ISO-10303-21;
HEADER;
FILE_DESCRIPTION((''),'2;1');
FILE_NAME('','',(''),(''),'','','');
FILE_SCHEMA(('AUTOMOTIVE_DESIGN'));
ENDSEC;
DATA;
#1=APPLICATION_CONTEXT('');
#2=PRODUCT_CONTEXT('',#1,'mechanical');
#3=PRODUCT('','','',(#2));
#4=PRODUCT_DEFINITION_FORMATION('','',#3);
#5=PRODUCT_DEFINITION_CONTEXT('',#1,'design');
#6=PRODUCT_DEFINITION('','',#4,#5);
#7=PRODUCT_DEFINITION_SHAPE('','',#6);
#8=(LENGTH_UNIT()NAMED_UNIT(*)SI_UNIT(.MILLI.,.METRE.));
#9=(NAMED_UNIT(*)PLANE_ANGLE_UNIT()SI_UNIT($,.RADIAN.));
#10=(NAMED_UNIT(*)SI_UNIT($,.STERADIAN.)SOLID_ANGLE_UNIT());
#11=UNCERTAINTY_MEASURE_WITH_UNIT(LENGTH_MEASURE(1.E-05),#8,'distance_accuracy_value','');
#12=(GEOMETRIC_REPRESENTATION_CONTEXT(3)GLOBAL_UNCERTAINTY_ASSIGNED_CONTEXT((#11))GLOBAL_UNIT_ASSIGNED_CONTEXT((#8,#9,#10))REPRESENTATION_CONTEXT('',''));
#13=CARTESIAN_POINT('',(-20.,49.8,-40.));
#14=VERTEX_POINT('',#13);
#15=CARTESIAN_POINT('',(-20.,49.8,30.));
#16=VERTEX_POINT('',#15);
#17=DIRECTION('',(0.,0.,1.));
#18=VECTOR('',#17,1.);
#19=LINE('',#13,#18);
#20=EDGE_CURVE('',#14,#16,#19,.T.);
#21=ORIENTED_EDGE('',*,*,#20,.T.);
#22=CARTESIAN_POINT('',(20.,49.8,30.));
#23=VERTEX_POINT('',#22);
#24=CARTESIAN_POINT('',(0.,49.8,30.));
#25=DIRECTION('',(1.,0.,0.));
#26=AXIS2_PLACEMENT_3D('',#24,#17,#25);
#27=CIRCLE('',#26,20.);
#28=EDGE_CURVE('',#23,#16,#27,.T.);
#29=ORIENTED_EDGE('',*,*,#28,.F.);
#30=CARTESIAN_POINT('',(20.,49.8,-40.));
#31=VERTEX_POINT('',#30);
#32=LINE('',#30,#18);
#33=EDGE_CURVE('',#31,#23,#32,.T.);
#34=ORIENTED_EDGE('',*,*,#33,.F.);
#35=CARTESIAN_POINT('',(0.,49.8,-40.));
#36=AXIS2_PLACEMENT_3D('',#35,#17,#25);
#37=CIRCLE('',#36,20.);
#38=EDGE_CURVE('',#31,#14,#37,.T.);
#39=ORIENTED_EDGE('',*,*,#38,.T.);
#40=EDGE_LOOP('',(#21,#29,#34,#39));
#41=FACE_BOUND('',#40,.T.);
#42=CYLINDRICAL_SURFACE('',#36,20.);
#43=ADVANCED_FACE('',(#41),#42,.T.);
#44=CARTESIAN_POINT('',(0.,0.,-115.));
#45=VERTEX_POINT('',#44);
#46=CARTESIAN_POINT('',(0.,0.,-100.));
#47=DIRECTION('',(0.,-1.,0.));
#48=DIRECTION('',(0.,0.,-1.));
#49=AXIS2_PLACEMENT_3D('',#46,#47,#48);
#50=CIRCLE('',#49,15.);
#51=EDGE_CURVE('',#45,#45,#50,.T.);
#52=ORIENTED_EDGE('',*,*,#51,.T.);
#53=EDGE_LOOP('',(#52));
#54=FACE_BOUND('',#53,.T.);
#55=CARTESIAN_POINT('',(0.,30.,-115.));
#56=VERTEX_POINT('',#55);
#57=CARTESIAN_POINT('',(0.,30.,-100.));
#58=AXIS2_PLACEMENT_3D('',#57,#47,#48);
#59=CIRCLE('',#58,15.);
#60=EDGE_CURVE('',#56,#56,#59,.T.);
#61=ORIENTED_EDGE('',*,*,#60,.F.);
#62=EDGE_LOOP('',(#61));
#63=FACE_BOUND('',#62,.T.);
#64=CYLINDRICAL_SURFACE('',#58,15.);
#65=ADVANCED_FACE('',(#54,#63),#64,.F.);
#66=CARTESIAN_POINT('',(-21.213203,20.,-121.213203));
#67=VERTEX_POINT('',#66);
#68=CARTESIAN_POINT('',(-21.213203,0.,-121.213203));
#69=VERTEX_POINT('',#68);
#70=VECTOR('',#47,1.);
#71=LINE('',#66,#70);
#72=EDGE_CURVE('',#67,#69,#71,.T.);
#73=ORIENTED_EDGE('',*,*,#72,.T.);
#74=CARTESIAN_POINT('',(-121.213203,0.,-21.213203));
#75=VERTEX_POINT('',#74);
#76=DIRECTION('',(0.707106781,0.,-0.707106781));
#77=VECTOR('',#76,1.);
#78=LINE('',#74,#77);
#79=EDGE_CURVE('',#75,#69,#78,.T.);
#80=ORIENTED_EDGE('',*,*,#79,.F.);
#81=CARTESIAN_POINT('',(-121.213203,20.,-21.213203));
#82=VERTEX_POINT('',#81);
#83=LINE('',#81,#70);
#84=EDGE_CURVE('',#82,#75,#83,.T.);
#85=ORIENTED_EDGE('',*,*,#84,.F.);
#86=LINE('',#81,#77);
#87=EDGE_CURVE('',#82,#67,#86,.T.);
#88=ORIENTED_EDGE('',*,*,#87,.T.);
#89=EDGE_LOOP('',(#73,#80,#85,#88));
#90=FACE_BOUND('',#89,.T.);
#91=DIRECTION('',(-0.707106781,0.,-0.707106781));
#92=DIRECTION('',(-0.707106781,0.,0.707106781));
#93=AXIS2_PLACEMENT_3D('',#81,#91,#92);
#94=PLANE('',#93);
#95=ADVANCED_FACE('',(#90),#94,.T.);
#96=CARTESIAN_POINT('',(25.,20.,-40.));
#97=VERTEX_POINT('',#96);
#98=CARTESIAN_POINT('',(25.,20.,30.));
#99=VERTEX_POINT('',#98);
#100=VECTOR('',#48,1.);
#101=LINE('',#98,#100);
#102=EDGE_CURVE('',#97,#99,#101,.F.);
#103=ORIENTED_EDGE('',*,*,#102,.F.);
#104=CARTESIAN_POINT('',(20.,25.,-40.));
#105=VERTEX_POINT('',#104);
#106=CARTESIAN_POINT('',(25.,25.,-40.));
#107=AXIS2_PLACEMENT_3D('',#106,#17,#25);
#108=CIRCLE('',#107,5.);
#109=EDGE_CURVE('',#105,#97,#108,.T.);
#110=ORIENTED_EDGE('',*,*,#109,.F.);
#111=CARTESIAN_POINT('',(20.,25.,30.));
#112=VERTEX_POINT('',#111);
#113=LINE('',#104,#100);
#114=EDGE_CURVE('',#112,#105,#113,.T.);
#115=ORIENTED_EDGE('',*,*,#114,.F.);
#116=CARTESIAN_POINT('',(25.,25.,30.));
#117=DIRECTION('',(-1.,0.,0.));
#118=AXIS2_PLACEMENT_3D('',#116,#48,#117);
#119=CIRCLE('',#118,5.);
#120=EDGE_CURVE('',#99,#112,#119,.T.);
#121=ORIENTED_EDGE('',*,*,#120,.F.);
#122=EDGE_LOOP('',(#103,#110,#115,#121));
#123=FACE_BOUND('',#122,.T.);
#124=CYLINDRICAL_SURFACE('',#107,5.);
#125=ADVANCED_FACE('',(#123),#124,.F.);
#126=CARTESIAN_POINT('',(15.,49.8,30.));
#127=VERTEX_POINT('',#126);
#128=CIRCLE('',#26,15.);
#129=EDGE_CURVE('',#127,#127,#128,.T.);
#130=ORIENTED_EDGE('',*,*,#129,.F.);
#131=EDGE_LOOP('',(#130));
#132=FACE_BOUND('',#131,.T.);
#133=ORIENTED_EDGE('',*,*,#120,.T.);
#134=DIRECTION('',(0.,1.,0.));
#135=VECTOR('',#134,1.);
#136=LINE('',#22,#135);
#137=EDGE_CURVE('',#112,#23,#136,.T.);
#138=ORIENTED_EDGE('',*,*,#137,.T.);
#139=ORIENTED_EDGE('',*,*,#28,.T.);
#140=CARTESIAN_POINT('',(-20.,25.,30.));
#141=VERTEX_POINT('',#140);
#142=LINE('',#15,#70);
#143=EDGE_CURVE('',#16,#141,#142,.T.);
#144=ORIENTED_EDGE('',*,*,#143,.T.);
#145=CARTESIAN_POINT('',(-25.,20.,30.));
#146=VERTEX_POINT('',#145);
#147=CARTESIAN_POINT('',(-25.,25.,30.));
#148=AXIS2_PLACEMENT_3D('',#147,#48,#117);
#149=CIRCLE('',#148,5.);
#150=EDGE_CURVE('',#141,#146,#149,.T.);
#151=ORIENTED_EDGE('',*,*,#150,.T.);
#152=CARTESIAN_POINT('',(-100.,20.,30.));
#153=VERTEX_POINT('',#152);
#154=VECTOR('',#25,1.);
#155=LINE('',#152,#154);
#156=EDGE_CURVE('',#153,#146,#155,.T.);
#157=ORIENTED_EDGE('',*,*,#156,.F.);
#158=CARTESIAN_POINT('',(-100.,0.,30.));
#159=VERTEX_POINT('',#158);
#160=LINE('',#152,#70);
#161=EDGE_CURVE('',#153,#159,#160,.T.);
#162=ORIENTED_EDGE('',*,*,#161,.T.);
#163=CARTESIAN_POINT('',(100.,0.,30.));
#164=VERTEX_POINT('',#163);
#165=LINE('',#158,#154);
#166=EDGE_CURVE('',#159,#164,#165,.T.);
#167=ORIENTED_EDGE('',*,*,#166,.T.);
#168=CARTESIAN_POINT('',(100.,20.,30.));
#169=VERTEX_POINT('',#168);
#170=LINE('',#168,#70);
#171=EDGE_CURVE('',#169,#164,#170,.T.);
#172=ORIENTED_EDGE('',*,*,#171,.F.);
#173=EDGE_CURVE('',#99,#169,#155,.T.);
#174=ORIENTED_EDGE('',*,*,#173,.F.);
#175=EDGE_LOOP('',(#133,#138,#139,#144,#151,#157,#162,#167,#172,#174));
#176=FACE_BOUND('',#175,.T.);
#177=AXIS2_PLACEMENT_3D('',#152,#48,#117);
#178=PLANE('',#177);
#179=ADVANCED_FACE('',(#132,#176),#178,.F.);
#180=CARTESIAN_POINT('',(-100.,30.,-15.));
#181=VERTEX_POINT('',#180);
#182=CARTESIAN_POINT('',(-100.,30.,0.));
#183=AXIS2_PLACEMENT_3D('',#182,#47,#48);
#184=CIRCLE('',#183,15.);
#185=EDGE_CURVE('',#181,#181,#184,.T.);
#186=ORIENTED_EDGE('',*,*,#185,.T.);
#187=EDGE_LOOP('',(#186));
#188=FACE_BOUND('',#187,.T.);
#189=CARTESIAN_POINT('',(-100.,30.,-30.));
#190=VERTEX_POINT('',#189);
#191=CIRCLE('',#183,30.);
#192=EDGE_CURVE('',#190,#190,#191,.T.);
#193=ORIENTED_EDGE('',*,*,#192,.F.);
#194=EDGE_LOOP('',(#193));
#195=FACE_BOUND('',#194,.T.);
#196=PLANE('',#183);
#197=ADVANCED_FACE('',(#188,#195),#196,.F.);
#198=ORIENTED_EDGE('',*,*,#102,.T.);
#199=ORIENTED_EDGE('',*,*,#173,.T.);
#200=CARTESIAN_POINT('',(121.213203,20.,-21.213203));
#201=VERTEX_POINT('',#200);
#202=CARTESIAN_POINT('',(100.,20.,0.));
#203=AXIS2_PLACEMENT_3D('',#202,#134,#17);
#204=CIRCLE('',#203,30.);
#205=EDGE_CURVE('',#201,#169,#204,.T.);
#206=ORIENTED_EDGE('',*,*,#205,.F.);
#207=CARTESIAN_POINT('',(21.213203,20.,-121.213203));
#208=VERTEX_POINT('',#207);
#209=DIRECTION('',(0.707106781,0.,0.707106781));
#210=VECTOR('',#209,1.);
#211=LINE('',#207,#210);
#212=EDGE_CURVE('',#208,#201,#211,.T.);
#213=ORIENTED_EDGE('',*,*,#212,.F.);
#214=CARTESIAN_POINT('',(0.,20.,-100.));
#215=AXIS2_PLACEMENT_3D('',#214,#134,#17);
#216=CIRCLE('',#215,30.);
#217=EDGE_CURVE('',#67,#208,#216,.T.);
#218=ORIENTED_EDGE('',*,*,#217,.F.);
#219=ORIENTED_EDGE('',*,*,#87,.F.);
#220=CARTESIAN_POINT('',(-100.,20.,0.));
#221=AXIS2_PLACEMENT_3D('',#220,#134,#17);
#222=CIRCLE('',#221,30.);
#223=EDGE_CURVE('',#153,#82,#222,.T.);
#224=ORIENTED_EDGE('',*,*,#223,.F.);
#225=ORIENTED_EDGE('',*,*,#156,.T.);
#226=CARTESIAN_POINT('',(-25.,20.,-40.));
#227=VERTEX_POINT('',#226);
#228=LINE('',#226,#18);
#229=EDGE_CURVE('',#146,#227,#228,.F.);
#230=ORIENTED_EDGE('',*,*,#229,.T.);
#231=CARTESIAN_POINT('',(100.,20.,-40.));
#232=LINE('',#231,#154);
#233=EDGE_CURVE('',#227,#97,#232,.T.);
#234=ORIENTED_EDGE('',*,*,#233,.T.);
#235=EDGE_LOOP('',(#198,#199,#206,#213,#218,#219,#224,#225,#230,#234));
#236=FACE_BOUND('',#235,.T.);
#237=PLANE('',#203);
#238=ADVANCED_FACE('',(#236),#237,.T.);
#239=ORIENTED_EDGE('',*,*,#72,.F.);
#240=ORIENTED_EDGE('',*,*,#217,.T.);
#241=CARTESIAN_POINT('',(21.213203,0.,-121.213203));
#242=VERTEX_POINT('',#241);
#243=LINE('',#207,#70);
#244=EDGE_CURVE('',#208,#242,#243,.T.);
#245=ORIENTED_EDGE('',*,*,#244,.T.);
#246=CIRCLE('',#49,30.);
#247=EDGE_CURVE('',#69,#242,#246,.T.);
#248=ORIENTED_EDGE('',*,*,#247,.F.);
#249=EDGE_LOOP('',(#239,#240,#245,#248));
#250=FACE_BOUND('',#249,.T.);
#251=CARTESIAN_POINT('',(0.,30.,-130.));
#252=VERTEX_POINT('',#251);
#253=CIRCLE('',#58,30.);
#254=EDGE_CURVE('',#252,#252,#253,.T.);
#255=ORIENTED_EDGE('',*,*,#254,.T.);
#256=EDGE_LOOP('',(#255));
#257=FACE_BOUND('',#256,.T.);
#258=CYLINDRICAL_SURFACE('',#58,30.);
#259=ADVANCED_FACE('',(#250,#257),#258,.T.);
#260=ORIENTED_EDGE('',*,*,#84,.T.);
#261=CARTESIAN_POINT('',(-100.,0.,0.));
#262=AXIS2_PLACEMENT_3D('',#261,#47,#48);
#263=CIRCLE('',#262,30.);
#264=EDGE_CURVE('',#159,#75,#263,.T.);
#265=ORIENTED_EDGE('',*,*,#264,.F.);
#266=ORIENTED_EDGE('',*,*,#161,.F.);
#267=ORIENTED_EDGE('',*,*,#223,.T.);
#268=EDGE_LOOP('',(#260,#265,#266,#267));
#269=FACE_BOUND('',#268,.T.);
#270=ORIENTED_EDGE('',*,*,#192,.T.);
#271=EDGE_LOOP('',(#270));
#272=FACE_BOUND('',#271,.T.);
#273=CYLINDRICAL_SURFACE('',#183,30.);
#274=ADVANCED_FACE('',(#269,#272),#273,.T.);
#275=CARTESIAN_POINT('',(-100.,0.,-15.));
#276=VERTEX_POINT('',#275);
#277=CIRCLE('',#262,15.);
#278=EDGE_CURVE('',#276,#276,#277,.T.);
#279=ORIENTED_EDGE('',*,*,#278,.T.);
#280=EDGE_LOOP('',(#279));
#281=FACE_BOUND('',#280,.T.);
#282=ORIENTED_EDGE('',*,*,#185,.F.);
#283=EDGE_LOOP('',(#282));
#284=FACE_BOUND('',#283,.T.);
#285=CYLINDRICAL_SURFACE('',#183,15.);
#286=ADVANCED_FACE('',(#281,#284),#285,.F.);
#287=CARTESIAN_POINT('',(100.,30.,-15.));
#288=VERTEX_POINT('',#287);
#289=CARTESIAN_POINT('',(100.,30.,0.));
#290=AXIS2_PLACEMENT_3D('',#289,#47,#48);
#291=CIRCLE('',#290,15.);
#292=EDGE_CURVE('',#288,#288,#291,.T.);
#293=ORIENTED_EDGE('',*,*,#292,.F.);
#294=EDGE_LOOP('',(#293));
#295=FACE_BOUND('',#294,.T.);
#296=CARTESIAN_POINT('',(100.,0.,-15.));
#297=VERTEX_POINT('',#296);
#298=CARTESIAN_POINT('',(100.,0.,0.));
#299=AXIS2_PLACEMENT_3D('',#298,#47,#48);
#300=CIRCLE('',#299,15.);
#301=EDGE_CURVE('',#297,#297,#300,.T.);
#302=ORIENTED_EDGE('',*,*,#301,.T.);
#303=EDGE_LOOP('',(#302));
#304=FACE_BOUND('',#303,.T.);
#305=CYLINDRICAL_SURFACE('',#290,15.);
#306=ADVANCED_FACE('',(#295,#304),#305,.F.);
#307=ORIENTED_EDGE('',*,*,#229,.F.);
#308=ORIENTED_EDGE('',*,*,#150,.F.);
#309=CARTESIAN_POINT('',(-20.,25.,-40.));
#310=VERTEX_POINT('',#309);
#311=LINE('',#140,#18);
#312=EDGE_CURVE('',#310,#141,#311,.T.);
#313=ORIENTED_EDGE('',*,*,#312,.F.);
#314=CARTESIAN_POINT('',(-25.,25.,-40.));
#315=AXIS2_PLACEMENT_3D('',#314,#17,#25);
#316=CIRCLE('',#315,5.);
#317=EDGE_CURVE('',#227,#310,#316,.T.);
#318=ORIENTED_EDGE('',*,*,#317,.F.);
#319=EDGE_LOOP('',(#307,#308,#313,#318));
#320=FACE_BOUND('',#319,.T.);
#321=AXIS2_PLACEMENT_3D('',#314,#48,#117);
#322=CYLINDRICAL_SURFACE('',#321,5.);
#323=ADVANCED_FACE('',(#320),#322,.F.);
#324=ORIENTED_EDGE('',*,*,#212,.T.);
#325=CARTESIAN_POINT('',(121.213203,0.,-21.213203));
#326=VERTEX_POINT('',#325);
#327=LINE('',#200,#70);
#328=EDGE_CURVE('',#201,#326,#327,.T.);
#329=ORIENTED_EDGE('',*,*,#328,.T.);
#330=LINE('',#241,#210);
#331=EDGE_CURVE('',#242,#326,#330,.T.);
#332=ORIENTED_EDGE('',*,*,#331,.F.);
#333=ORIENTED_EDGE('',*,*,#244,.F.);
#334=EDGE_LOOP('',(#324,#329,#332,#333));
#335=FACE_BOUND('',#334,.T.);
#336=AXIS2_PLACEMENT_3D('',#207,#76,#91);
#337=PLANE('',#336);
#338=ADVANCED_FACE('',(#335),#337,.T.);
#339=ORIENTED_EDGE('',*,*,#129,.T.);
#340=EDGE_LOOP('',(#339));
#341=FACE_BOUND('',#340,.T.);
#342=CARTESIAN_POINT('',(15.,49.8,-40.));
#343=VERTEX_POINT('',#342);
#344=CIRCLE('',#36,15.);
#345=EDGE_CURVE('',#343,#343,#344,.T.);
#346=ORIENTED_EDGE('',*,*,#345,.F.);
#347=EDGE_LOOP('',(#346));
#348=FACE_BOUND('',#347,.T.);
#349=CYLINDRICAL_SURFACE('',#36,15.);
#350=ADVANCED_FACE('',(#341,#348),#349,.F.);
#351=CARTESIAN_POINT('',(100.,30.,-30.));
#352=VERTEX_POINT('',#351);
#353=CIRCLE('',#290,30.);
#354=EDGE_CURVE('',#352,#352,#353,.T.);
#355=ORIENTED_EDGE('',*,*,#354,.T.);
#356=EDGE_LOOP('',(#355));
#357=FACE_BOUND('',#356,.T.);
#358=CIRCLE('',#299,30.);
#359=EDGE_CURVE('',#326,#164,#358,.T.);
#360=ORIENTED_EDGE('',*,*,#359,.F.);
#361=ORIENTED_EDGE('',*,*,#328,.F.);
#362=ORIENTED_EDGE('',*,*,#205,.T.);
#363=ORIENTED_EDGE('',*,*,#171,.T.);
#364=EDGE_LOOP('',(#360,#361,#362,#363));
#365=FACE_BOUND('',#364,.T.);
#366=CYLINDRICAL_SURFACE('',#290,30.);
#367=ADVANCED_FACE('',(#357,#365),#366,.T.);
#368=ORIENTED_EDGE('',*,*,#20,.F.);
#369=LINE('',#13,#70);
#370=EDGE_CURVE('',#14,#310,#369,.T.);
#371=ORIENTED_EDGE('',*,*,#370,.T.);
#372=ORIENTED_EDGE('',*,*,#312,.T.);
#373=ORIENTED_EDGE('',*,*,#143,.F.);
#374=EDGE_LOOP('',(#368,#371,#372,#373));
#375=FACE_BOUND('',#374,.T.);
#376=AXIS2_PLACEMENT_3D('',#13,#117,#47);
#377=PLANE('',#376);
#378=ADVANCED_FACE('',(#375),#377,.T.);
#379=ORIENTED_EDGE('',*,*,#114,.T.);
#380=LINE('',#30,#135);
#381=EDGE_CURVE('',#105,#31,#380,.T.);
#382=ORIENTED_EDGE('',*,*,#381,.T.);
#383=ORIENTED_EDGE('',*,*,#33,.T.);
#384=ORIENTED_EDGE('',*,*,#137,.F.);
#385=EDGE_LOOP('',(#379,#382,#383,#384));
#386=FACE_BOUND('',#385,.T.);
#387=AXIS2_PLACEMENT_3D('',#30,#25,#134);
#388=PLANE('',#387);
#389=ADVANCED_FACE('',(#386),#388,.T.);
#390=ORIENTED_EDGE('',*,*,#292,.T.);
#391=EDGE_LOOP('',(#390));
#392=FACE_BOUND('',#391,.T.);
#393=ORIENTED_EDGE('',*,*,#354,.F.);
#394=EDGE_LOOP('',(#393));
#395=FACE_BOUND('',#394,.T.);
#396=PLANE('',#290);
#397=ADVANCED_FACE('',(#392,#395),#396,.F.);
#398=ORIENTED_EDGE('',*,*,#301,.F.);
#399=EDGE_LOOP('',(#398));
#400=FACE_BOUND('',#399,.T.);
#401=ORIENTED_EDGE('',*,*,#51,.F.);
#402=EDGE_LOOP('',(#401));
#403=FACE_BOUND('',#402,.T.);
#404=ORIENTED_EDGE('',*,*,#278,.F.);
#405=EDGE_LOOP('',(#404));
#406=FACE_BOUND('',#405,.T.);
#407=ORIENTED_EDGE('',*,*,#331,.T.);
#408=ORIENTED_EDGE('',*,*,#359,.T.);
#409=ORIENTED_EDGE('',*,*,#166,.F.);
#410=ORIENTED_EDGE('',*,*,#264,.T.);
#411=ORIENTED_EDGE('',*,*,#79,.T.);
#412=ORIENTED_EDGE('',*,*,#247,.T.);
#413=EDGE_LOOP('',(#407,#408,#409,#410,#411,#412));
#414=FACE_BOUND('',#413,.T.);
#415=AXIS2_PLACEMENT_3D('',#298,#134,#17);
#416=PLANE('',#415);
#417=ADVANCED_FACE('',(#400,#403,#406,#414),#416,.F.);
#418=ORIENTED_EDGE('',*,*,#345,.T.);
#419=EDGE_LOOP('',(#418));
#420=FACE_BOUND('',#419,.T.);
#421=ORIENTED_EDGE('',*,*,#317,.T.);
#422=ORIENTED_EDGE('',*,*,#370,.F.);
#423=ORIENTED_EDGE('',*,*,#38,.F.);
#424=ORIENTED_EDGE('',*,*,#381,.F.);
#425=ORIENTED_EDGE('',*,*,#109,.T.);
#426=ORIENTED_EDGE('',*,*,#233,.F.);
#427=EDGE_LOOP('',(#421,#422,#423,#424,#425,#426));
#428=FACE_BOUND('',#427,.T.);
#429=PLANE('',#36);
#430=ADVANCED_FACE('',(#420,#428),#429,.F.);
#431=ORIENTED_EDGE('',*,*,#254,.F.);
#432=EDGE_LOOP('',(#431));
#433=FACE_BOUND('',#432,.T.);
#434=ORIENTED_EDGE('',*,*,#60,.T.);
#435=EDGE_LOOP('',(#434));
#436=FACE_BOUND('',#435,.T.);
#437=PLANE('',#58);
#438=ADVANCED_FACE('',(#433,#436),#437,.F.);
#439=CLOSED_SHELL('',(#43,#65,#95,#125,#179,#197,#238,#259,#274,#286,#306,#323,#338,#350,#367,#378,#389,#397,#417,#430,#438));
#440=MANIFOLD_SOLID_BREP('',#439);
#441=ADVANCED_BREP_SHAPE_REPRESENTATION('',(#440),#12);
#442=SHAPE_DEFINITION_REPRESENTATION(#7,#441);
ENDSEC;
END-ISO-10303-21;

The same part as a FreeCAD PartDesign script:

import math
import FreeCAD as App
import Part
import Sketcher

V = App.Vector
Q = App.Units.Quantity


def edges_at(feature, points):
    """Names of the edges that pass closest to the given points."""
    edges = feature.Shape.Edges
    near = lambda p: min(range(len(edges)), key=lambda i: edges[i].distToShape(Part.Vertex(*p))[0])
    return sorted({f"Edge{near(p) + 1}" for p in points})

doc = App.newDocument("Part")
body = doc.addObject("PartDesign::Body", "Body")

# Sketch on XZ plane
sketch1 = body.newObject("Sketcher::SketchObject", "Sketch")
sketch1.AttachmentSupport = (doc.getObject("XZ_Plane"), [""])
sketch1.MapMode = "FlatFace"
sketch1.addGeometry([
    Part.LineSegment(V(-21, -121, 0), V(-121, -21, 0)),  # 0
    Part.ArcOfCircle(Part.Circle(V(-100, 0, 0), V(0, 0, 1), 30), math.radians(-135), math.radians(90)),  # 1
    Part.LineSegment(V(-100, 30, 0), V(100, 30, 0)),  # 2
    Part.ArcOfCircle(Part.Circle(V(100, 0, 0), V(0, 0, 1), 30), math.radians(90), math.radians(315)),  # 3
    Part.LineSegment(V(121, -21, 0), V(21, -121, 0)),  # 4
    Part.ArcOfCircle(Part.Circle(V(0, -100, 0), V(0, 0, 1), 30), math.radians(-45), math.radians(225)),  # 5
], False)
sketch1.addConstraint([
    Sketcher.Constraint("Tangent", 0, 2, 1, 1),
    Sketcher.Constraint("Tangent", 1, 2, 2, 1),
    Sketcher.Constraint("Tangent", 2, 2, 3, 1),
    Sketcher.Constraint("Tangent", 3, 2, 4, 1),
    Sketcher.Constraint("Tangent", 4, 2, 5, 1),
    Sketcher.Constraint("Tangent", 5, 2, 0, 1),
    Sketcher.Constraint("Horizontal", 2),
    Sketcher.Constraint("Equal", 1, 3),
    Sketcher.Constraint("Equal", 3, 5),
    Sketcher.Constraint("Symmetric", 1, 3, 3, 3, -1, 1),
    Sketcher.Constraint("PointOnObject", 5, 3, -2),
    Sketcher.Constraint("Perpendicular", 0, 4),
    Sketcher.Constraint("Radius", 1, Q("30 mm")),
    Sketcher.Constraint("DistanceX", 2, 1, 2, 2, Q("200 mm")),
])
pad1 = body.newObject("PartDesign::Pad", "Pad")
pad1.Profile = sketch1
pad1.Length = 20
pad1.Reversed = True

# Sketch on XZ plane
sketch2 = body.newObject("Sketcher::SketchObject", "Sketch001")
sketch2.AttachmentSupport = (doc.getObject("XZ_Plane"), [""])
sketch2.MapMode = "FlatFace"
sketch2.addGeometry([
    Part.Circle(V(0, -100, 0), V(0, 0, 1), 30),  # 0
    Part.Circle(V(0, -100, 0), V(0, 0, 1), 15),  # 1
    Part.Circle(V(100, 0, 0), V(0, 0, 1), 30),  # 2
    Part.Circle(V(100, 0, 0), V(0, 0, 1), 15),  # 3
    Part.Circle(V(-100, 0, 0), V(0, 0, 1), 30),  # 4
    Part.Circle(V(-100, 0, 0), V(0, 0, 1), 15),  # 5
], False)
sketch2.addConstraint([
    Sketcher.Constraint("Coincident", 1, 3, 0, 3),
    Sketcher.Constraint("Coincident", 3, 3, 2, 3),
    Sketcher.Constraint("Coincident", 5, 3, 4, 3),
    Sketcher.Constraint("Equal", 0, 2),
    Sketcher.Constraint("Equal", 1, 3),
    Sketcher.Constraint("Equal", 2, 4),
    Sketcher.Constraint("Equal", 3, 5),
    Sketcher.Constraint("Symmetric", 2, 3, 4, 3, -1, 1),
    Sketcher.Constraint("PointOnObject", 0, 3, -2),
    Sketcher.Constraint("PointOnObject", 2, 3, -1),
    Sketcher.Constraint("Diameter", 0, Q("60 mm")),
    Sketcher.Constraint("Diameter", 1, Q("30 mm")),
    Sketcher.Constraint("DistanceY", 0, 3, -1, 1, Q("100 mm")),
    Sketcher.Constraint("DistanceX", -1, 1, 2, 3, Q("100 mm")),
])
pad2 = body.newObject("PartDesign::Pad", "Pad001")
pad2.Profile = sketch2
pad2.Length = 30
pad2.Reversed = True

# Sketch on XY plane
sketch3 = body.newObject("Sketcher::SketchObject", "Sketch002")
sketch3.AttachmentSupport = (doc.getObject("XY_Plane"), [""])
sketch3.MapMode = "FlatFace"
sketch3.AttachmentOffset = App.Placement(V(0, 0, 30), App.Rotation())
sketch3.addGeometry([
    Part.LineSegment(V(-20, 50, 0), V(-20, 0, 0)),  # 0
    Part.LineSegment(V(-20, 0, 0), V(20, 0, 0)),  # 1
    Part.LineSegment(V(20, 0, 0), V(20, 50, 0)),  # 2
    Part.ArcOfCircle(Part.Circle(V(0, 50, 0), V(0, 0, 1), 20), math.radians(0), math.radians(180)),  # 3
    Part.Circle(V(0, 50, 0), V(0, 0, 1), 15),  # 4
], False)
sketch3.addConstraint([
    Sketcher.Constraint("Coincident", 0, 2, 1, 1),
    Sketcher.Constraint("Coincident", 1, 2, 2, 1),
    Sketcher.Constraint("Tangent", 2, 2, 3, 1),
    Sketcher.Constraint("Tangent", 3, 2, 0, 1),
    Sketcher.Constraint("Vertical", 0),
    Sketcher.Constraint("Horizontal", 1),
    Sketcher.Constraint("Vertical", 2),
    Sketcher.Constraint("Coincident", 4, 3, 3, 3),
    Sketcher.Constraint("Symmetric", 0, 2, 1, 2, -1, 1),
    Sketcher.Constraint("Diameter", 4, Q("30 mm")),
    Sketcher.Constraint("Radius", 3, Q("20 mm")),
    Sketcher.Constraint("DistanceY", 0, 2, 0, 1, Q("49.8 mm")),
])
pad3 = body.newObject("PartDesign::Pad", "Pad002")
pad3.Profile = sketch3
pad3.Length = 70
pad3.Reversed = True
doc.recompute()

fillet = body.newObject("PartDesign::Fillet", "Fillet")
fillet.Base = (pad3, edges_at(pad3, [(20, 20, -5), (-20, 20, -5)]))
fillet.Radius = 5

doc.recompute()
